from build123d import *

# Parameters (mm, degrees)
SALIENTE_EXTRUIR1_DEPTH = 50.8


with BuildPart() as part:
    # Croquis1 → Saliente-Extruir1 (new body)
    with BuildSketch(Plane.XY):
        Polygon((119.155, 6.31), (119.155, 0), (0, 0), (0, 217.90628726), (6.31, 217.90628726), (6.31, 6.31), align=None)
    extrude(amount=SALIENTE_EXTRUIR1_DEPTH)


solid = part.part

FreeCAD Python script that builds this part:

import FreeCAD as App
import Part
import Sketcher
from FreeCAD import Vector
Q = App.Units.Quantity

doc = App.newDocument("Part")
body = doc.addObject("PartDesign::Body", "Body")

sketch1 = doc.addObject("Sketcher::SketchObject", "Sketch")
body.addObject(sketch1)
sketch1.AttachmentSupport = (doc.XY_Plane, [""])
sketch1.MapMode = "FlatFace"
sketch1.addGeometry(Part.LineSegment(Vector(119.155, 0, 0), Vector(119.155, 6.31, 0)), False)
sketch1.addGeometry(Part.LineSegment(Vector(119.155, 6.31, 0), Vector(6.31, 6.31, 0)), False)
sketch1.addGeometry(Part.LineSegment(Vector(6.31, 6.31, 0), Vector(6.31, 217.906287, 0)), False)
sketch1.addGeometry(Part.LineSegment(Vector(6.31, 217.906287, 0), Vector(0, 217.906287, 0)), False)
sketch1.addGeometry(Part.LineSegment(Vector(0, 217.906287, 0), Vector(0, 0, 0)), False)
sketch1.addGeometry(Part.LineSegment(Vector(0, 0, 0), Vector(119.155, 0, 0)), False)
sketch1.addConstraint(Sketcher.Constraint("Coincident", 0, 2, 1, 1))
sketch1.addConstraint(Sketcher.Constraint("Coincident", 1, 2, 2, 1))
sketch1.addConstraint(Sketcher.Constraint("Coincident", 2, 2, 3, 1))
sketch1.addConstraint(Sketcher.Constraint("Coincident", 3, 2, 4, 1))
sketch1.addConstraint(Sketcher.Constraint("Coincident", 4, 2, 5, 1))
sketch1.addConstraint(Sketcher.Constraint("Coincident", 5, 2, 0, 1))
sketch1.addConstraint(Sketcher.Constraint("Vertical", 0))
sketch1.addConstraint(Sketcher.Constraint("Horizontal", 1))
sketch1.addConstraint(Sketcher.Constraint("Vertical", 2))
sketch1.addConstraint(Sketcher.Constraint("Horizontal", 3))
sketch1.addConstraint(Sketcher.Constraint("Vertical", 4))
sketch1.addConstraint(Sketcher.Constraint("Horizontal", 5))
sketch1.addConstraint(Sketcher.Constraint("Coincident", 4, 2, -1, 1))
sketch1.addConstraint(Sketcher.Constraint("Equal", 3, 0))
sketch1.addConstraint(Sketcher.Constraint("DistanceX", 1, 2, 1, 1, Q("112.845 mm")))
sketch1.addConstraint(Sketcher.Constraint("DistanceX", 3, 2, 3, 1, Q("6.31 mm")))
sketch1.addConstraint(Sketcher.Constraint("DistanceY", 2, 1, 2, 2, Q("211.596287 mm")))
pad1 = doc.addObject("PartDesign::Pad", "Pad")
body.addObject(pad1)
pad1.Profile = sketch1
pad1.Length = Q("2 in")

doc.recompute()
